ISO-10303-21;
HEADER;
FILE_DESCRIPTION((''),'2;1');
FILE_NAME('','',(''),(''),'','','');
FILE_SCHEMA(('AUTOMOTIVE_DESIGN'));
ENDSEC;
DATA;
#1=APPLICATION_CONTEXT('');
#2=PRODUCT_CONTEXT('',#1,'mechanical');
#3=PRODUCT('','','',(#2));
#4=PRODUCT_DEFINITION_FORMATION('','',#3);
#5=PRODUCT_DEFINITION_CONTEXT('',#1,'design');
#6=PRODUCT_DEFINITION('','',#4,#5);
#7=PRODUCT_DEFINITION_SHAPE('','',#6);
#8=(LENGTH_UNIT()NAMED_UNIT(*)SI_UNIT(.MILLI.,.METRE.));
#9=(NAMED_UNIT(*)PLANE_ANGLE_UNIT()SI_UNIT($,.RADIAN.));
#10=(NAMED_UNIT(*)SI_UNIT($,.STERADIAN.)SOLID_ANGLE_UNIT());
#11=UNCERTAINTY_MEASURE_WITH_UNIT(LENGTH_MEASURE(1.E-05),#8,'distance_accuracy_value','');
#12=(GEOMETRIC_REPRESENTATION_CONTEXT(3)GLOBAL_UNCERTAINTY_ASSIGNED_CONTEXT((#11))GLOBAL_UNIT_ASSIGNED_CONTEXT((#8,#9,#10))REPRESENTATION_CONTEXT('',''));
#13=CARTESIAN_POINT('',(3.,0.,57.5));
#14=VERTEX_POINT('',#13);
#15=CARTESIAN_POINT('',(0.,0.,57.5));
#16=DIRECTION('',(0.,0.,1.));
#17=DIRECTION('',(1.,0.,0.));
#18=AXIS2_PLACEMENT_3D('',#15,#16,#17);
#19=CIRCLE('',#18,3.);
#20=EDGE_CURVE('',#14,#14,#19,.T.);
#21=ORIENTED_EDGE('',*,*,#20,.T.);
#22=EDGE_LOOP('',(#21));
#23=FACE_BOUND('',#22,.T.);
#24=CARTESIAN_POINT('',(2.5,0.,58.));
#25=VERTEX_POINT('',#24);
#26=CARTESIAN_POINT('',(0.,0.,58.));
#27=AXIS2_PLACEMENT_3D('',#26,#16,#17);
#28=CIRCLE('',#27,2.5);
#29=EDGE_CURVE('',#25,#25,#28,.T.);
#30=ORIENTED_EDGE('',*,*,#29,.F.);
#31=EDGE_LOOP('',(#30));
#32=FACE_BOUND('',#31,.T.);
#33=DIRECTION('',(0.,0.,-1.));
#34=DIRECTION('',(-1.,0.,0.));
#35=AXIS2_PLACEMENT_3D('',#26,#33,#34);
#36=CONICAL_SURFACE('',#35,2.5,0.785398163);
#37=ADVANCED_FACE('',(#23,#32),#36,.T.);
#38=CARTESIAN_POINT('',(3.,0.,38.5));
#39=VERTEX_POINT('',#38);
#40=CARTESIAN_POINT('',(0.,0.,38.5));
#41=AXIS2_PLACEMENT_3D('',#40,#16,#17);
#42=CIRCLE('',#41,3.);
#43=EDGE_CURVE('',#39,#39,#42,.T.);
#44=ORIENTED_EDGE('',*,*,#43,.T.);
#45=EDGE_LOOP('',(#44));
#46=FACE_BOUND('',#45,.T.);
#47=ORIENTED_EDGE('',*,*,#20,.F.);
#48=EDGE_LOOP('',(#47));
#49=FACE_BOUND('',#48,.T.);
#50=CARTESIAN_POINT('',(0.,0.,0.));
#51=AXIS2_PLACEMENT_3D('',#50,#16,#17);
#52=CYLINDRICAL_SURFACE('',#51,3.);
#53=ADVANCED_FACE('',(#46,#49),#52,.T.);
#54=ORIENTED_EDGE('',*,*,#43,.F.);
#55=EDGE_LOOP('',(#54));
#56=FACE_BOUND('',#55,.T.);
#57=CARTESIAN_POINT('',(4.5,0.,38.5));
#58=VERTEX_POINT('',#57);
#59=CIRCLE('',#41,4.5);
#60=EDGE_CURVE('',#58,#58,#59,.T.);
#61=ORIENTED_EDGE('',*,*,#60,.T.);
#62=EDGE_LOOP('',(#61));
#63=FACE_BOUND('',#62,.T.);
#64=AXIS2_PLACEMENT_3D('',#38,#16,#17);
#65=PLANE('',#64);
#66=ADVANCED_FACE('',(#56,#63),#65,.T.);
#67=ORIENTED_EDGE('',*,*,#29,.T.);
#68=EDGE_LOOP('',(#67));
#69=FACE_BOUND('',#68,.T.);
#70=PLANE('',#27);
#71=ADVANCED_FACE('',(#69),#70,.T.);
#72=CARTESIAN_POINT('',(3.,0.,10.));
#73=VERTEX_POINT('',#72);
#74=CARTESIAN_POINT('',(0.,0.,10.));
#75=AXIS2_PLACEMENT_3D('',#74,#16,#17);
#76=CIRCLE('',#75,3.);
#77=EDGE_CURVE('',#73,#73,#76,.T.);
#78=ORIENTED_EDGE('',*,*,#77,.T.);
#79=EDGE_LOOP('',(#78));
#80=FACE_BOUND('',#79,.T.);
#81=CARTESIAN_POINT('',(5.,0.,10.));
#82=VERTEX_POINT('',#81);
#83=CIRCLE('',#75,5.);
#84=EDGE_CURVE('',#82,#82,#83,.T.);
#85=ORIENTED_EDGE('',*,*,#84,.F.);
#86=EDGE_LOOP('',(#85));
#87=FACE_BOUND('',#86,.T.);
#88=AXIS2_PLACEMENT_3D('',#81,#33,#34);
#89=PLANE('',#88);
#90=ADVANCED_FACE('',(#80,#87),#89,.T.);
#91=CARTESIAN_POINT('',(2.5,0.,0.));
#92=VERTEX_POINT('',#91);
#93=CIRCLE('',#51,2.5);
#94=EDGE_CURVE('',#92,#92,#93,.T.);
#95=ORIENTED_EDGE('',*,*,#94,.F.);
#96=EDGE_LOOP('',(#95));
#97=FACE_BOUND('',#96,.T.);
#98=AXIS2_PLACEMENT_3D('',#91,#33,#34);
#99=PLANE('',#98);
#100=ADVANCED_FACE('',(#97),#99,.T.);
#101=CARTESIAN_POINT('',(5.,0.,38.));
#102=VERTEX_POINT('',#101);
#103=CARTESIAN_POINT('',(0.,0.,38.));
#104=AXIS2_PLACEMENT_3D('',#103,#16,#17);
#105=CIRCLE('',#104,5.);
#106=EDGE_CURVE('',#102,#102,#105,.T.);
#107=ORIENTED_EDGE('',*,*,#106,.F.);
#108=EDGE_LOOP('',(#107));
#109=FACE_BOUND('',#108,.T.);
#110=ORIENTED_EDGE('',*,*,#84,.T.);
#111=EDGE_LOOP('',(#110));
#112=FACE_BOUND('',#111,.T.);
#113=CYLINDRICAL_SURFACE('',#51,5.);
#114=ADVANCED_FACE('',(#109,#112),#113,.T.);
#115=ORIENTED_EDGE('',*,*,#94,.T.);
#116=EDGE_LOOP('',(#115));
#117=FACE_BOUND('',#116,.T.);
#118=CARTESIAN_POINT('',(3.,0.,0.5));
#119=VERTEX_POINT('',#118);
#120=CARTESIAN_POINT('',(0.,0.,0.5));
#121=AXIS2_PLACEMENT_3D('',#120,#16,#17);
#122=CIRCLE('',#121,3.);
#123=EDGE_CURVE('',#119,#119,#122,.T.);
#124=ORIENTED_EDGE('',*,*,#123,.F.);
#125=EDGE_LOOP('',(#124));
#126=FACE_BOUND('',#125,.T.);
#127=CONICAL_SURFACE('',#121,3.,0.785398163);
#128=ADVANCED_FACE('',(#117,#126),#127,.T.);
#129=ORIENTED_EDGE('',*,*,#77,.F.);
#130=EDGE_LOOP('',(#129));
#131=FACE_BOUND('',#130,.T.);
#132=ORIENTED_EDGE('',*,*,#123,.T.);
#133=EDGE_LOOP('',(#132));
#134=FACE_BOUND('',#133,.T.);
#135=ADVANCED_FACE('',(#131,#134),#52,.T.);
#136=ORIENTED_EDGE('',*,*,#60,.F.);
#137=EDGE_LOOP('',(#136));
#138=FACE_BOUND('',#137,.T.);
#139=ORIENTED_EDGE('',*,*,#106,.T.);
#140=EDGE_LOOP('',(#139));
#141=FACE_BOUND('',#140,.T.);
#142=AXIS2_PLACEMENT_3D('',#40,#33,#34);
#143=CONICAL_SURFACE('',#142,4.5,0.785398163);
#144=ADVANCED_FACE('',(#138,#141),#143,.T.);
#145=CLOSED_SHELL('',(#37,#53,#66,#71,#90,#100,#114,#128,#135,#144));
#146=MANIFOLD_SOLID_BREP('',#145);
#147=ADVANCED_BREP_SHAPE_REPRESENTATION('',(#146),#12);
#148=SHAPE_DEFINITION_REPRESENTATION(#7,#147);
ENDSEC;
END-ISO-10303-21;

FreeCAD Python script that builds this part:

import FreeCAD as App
import Part
import Sketcher
Q = App.Units.Quantity

doc = App.newDocument("Part")
body = doc.addObject("PartDesign::Body", "Body")

sketch1 = body.newObject("Sketcher::SketchObject", "Sketch")
sketch1.AttachmentSupport = (doc.getObject("XZ_Plane"), [""])
sketch1.MapMode = "FlatFace"
sketch1.addGeometry([
    Part.LineSegment(App.Vector(2.5, 0, 0), App.Vector(0, 0, 0)),
    Part.LineSegment(App.Vector(0, 0, 0), App.Vector(0, 58, 0)),
    Part.LineSegment(App.Vector(0, 58, 0), App.Vector(2.5, 58, 0)),
    Part.LineSegment(App.Vector(2.5, 58, 0), App.Vector(3, 57.5, 0)),
    Part.LineSegment(App.Vector(3, 57.5, 0), App.Vector(3, 38.5, 0)),
    Part.LineSegment(App.Vector(3, 38.5, 0), App.Vector(4.5, 38.5, 0)),
    Part.LineSegment(App.Vector(4.5, 38.5, 0), App.Vector(5, 38, 0)),
    Part.LineSegment(App.Vector(5, 38, 0), App.Vector(5, 10, 0)),
    Part.LineSegment(App.Vector(5, 10, 0), App.Vector(3, 10, 0)),
    Part.LineSegment(App.Vector(3, 10, 0), App.Vector(3, 0.5, 0)),
    Part.LineSegment(App.Vector(3, 0.5, 0), App.Vector(2.5, 0, 0)),
], False)
sketch1.addConstraint([
    Sketcher.Constraint("Coincident", 0, 2, 1, 1),
    Sketcher.Constraint("Coincident", 1, 2, 2, 1),
    Sketcher.Constraint("Coincident", 2, 2, 3, 1),
    Sketcher.Constraint("Coincident", 3, 2, 4, 1),
    Sketcher.Constraint("Coincident", 4, 2, 5, 1),
    Sketcher.Constraint("Coincident", 5, 2, 6, 1),
    Sketcher.Constraint("Coincident", 6, 2, 7, 1),
    Sketcher.Constraint("Coincident", 7, 2, 8, 1),
    Sketcher.Constraint("Coincident", 8, 2, 9, 1),
    Sketcher.Constraint("Coincident", 9, 2, 10, 1),
    Sketcher.Constraint("Coincident", 10, 2, 0, 1),
    Sketcher.Constraint("Horizontal", 0),
    Sketcher.Constraint("Vertical", 1),
    Sketcher.Constraint("Horizontal", 2),
    Sketcher.Constraint("Vertical", 4),
    Sketcher.Constraint("Horizontal", 5),
    Sketcher.Constraint("Vertical", 7),
    Sketcher.Constraint("Horizontal", 8),
    Sketcher.Constraint("Vertical", 9),
    Sketcher.Constraint("Coincident", 0, 2, -1, 1),
    Sketcher.Constraint("Parallel", 3, 6),
    Sketcher.Constraint("Perpendicular", 6, 10),
    Sketcher.Constraint("Vertical", 4, 2, 8, 2),
    Sketcher.Constraint("Vertical", 2, 2, 10, 2),
    Sketcher.Constraint("Equal", 3, 6),
    Sketcher.Constraint("Equal", 6, 10),
    Sketcher.Constraint("DistanceX", 8, 2, 8, 1, Q("2 mm")),
    Sketcher.Constraint("DistanceY", 1, 1, 1, 2, Q("58 mm")),
    Sketcher.Constraint("DistanceY", 4, 2, 4, 1, Q("19 mm")),
    Sketcher.Constraint("DistanceY", 7, 2, 7, 1, Q("28 mm")),
    Sketcher.Constraint("DistanceX", 0, 2, 0, 1, Q("2.5 mm")),
    Sketcher.Constraint("DistanceX", 5, 1, 5, 2, Q("1.5 mm")),
])
revolution = body.newObject("PartDesign::Revolution", "Revolution")
revolution.Profile = sketch1
revolution.ReferenceAxis = (sketch1, ["V_Axis"])
revolution.Angle = 360

doc.recompute()
